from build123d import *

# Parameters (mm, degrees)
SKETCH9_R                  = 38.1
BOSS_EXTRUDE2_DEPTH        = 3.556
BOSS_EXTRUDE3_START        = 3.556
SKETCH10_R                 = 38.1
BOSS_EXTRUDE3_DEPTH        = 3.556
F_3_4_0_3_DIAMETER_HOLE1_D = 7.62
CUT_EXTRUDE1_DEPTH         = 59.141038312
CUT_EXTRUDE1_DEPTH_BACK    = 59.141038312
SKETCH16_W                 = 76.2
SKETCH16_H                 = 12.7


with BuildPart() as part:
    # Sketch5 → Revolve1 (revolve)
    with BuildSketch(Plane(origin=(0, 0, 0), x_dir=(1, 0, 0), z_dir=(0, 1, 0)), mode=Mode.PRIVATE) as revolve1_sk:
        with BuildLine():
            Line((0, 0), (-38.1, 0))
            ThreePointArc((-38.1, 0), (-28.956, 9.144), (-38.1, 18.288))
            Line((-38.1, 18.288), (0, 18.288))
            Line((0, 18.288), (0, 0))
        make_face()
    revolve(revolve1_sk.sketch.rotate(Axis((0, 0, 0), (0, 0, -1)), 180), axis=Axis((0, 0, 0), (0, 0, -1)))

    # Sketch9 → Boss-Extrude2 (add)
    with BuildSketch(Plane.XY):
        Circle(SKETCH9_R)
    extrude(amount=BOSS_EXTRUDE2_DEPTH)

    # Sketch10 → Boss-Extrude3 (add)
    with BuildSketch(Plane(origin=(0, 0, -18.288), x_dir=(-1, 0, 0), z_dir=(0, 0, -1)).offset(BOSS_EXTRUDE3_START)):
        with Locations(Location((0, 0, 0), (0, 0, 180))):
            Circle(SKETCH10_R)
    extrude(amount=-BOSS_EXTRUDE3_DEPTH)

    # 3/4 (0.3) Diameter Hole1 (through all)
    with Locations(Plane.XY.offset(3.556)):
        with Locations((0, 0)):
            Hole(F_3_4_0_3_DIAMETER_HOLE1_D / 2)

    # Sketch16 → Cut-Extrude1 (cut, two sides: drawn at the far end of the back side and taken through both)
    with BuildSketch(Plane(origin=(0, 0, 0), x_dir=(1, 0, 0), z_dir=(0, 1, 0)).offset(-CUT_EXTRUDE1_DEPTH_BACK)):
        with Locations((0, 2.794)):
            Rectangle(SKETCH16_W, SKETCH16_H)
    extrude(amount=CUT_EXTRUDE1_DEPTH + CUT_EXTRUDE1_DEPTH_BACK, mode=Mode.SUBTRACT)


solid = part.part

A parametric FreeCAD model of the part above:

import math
import FreeCAD as App
import Part
import Sketcher
from FreeCAD import Vector
Q = App.Units.Quantity

doc = App.newDocument("Part")
params = doc.addObject("Spreadsheet::Sheet", "Params")
for row, (alias, value) in enumerate([
    ("sketch1_radius", "0.36 in"),
    ("sketch1_width", "1.5 in"),
    ("revolution_angle", "360 deg"),
    ("sketch2_diameter", "3 in"),
    ("pad1_length", "0.14 in"),
    ("sketch3_diameter", "3 in"),
    ("pad2_length", "0.14 in"),
    ("sketch4_diameter", "0.3 in"),
    ("hole_diameter", "0.3 in"),
    ("sketch5_width", "3 in"),
    ("sketch5_height", "0.5 in"),
], start=1):
    params.set(f"A{row}", alias)
    params.set(f"B{row}", "=" + value)
    params.setAlias(f"B{row}", alias)

body = doc.addObject("PartDesign::Body", "Body")

# Sketch on XZ plane
sketch1 = body.newObject("Sketcher::SketchObject", "Sketch")
sketch1.AttachmentSupport = (doc.getObject("XZ_Plane"), [""])
sketch1.MapMode = "FlatFace"
sketch1.addGeometry([
    Part.LineSegment(Vector(-38, 0, 0), Vector(0, 0, 0)),
    Part.LineSegment(Vector(0, 0, 0), Vector(0, -18, 0)),
    Part.LineSegment(Vector(0, -18, 0), Vector(-38, -18, 0)),
    Part.ArcOfCircle(Part.Circle(Vector(-38, -9, 0), Vector(0, 0, 1), 9), math.radians(-90), math.radians(90)),
], False)
sketch1.addConstraint([
    Sketcher.Constraint("Coincident", 0, 2, 1, 1),
    Sketcher.Constraint("Coincident", 1, 2, 2, 1),
    Sketcher.Constraint("Tangent", 2, 2, 3, 1),
    Sketcher.Constraint("Tangent", 3, 2, 0, 1),
    Sketcher.Constraint("Horizontal", 0),
    Sketcher.Constraint("Vertical", 1),
    Sketcher.Constraint("Horizontal", 2),
    Sketcher.Constraint("Coincident", 0, 2, -1, 1),
    Sketcher.Constraint("Radius", 3, Q("0.36 in")),
    Sketcher.Constraint("DistanceX", 0, 1, 0, 2, Q("1.5 in")),
])
sketch1.setExpression("Constraints[8]", "Params.sketch1_radius")
sketch1.setExpression("Constraints[9]", "Params.sketch1_width")
revolution = body.newObject("PartDesign::Revolution", "Revolution")
revolution.Profile = sketch1
revolution.ReferenceAxis = (sketch1, ["V_Axis"])
revolution.setExpression("Angle", "Params.revolution_angle")

# Sketch on XY plane
sketch2 = body.newObject("Sketcher::SketchObject", "Sketch001")
sketch2.AttachmentSupport = (doc.getObject("XY_Plane"), [""])
sketch2.MapMode = "FlatFace"
sketch2.addGeometry(Part.Circle(Vector(0, 0, 0), Vector(0, 0, 1), 38), False)
sketch2.addConstraint([
    Sketcher.Constraint("Coincident", 0, 3, -1, 1),
    Sketcher.Constraint("Diameter", 0, Q("3 in")),
])
sketch2.setExpression("Constraints[1]", "Params.sketch2_diameter")
pad1 = body.newObject("PartDesign::Pad", "Pad")
pad1.Profile = sketch2
pad1.setExpression("Length", "Params.pad1_length")

# Sketch on XY plane
sketch3 = body.newObject("Sketcher::SketchObject", "Sketch002")
sketch3.AttachmentSupport = (doc.getObject("XY_Plane"), [""])
sketch3.MapMode = "FlatFace"
sketch3.AttachmentOffset = App.Placement(Vector(0, 0, -0.86 * 25.4), App.Rotation())
sketch3.addGeometry(Part.Circle(Vector(0, 0, 0), Vector(0, 0, 1), 38), False)
sketch3.addConstraint([
    Sketcher.Constraint("Coincident", 0, 3, -1, 1),
    Sketcher.Constraint("Diameter", 0, Q("3 in")),
])
sketch3.setExpression("Constraints[1]", "Params.sketch3_diameter")
pad2 = body.newObject("PartDesign::Pad", "Pad001")
pad2.Profile = sketch3
pad2.setExpression("Length", "Params.pad2_length")

# Sketch on XY plane
sketch4 = body.newObject("Sketcher::SketchObject", "Sketch003")
sketch4.AttachmentSupport = (doc.getObject("XY_Plane"), [""])
sketch4.MapMode = "FlatFace"
sketch4.AttachmentOffset = App.Placement(Vector(0, 0, 0.14 * 25.4), App.Rotation())
sketch4.addGeometry(Part.Circle(Vector(0, 0, 0), Vector(0, 0, 1), 3.8), False)
sketch4.addConstraint([
    Sketcher.Constraint("Coincident", 0, 3, -1, 1),
    Sketcher.Constraint("Diameter", 0, Q("0.3 in")),
])
sketch4.setExpression("Constraints[1]", "Params.sketch4_diameter")
doc.recompute()
hole = body.newObject("PartDesign::Hole", "Hole")
hole.Profile = sketch4
hole.ThreadType = "None"
hole.setExpression("Diameter", "Params.hole_diameter")
hole.DepthType = "ThroughAll"

# Sketch on XZ plane
sketch5 = body.newObject("Sketcher::SketchObject", "Sketch004")
sketch5.AttachmentSupport = (doc.getObject("XZ_Plane"), [""])
sketch5.MapMode = "FlatFace"
sketch5.addGeometry([
    Part.LineSegment(Vector(-38, -9, 0), Vector(-38, 4, 0)),
    Part.LineSegment(Vector(-38, 4, 0), Vector(38, 4, 0)),
    Part.LineSegment(Vector(38, 4, 0), Vector(38, -9, 0)),
    Part.LineSegment(Vector(38, -9, 0), Vector(-38, -9, 0)),
], False)
sketch5.addConstraint([
    Sketcher.Constraint("Coincident", 0, 2, 1, 1),
    Sketcher.Constraint("Coincident", 1, 2, 2, 1),
    Sketcher.Constraint("Coincident", 2, 2, 3, 1),
    Sketcher.Constraint("Coincident", 3, 2, 0, 1),
    Sketcher.Constraint("Vertical", 0),
    Sketcher.Constraint("Horizontal", 1),
    Sketcher.Constraint("Vertical", 2),
    Sketcher.Constraint("Horizontal", 3),
    Sketcher.Constraint("DistanceX", 1, 1, 1, 2, Q("3 in")),
    Sketcher.Constraint("DistanceY", 0, 1, 0, 2, Q("0.5 in")),
    Sketcher.Constraint("DistanceX", 0, 2, -1, 1, Q("1.5 in")),
    Sketcher.Constraint("DistanceY", -1, 1, 0, 2, Q("0.14 in")),
])
sketch5.setExpression("Constraints[8]", "Params.sketch5_width")
sketch5.setExpression("Constraints[9]", "Params.sketch5_height")
pocket1 = body.newObject("PartDesign::Pocket", "Pocket")
pocket1.Profile = sketch5
pocket1.Type = "ThroughAll"
pocket1.Midplane = True

doc.recompute()
